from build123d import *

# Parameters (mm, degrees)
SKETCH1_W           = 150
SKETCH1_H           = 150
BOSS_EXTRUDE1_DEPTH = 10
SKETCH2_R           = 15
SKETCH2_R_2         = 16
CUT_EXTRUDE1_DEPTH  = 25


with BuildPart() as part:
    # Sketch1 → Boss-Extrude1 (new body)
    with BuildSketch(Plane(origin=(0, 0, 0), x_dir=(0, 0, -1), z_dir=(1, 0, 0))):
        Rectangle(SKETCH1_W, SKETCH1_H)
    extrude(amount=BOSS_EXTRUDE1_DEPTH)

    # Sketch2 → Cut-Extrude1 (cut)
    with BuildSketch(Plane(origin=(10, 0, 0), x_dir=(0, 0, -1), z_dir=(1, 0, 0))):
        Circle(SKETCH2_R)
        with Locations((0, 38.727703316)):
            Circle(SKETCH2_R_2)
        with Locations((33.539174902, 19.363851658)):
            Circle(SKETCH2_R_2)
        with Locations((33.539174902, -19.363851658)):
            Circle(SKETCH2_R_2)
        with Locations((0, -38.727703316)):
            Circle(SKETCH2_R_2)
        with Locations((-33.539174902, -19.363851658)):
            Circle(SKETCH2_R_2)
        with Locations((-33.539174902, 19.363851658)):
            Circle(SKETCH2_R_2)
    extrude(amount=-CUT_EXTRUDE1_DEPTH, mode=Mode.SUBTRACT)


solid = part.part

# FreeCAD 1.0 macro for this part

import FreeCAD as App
import Part
import Sketcher
from FreeCAD import Vector


def add_polygon(sketch, points):
    """Adds a closed chain of lines whose ends are joined by coincident constraints."""
    first, n = sketch.GeometryCount, len(points)
    for a, b in zip(points, points[1:] + points[:1]):
        sketch.addGeometry(Part.LineSegment(App.Vector(*a, 0), App.Vector(*b, 0)), False)
    for i in range(n):
        sketch.addConstraint(Sketcher.Constraint("Coincident", first + i, 2, first + (i + 1) % n, 1))

doc = App.newDocument("Part")
body = doc.addObject("PartDesign::Body", "Body")

# Sketch on YZ plane
sketch1 = body.newObject("Sketcher::SketchObject", "Sketch")
sketch1.AttachmentSupport = (doc.getObject("YZ_Plane"), [""])
sketch1.MapMode = "FlatFace"
add_polygon(sketch1, [(75, 75), (-75, 75), (-75, -75), (75, -75)])  # lines 0-3
sketch1.addConstraint(Sketcher.Constraint("Horizontal", 0))
sketch1.addConstraint(Sketcher.Constraint("Vertical", 1))
sketch1.addConstraint(Sketcher.Constraint("Horizontal", 2))
sketch1.addConstraint(Sketcher.Constraint("Vertical", 3))
sketch1.addConstraint(Sketcher.Constraint("Symmetric", 0, 2, 2, 2, -1, 1))
sketch1.addConstraint(Sketcher.Constraint("Equal", 2, 1))
sketch1.addConstraint(Sketcher.Constraint("DistanceX", 0, 2, 0, 1, 150.0))
pad1 = body.newObject("PartDesign::Pad", "Pad")
pad1.Profile = sketch1
pad1.Length = 10

# Sketch on YZ plane
sketch2 = body.newObject("Sketcher::SketchObject", "Sketch001")
sketch2.AttachmentSupport = (doc.getObject("YZ_Plane"), [""])
sketch2.MapMode = "FlatFace"
sketch2.AttachmentOffset = App.Placement(Vector(0, 0, 10), App.Rotation())
sketch2.addGeometry(Part.Circle(Vector(0, 0, 0), Vector(0, 0, 1), 15), False)
sketch2.addGeometry(Part.Circle(Vector(38.727703, 0, 0), Vector(0, 0, 1), 16), False)
sketch2.addGeometry(Part.Circle(Vector(19.363852, -33.539175, 0), Vector(0, 0, 1), 16), False)
sketch2.addGeometry(Part.Circle(Vector(-19.363852, -33.539175, 0), Vector(0, 0, 1), 16), False)
sketch2.addGeometry(Part.Circle(Vector(-38.727703, 0, 0), Vector(0, 0, 1), 16), False)
sketch2.addGeometry(Part.Circle(Vector(-19.363852, 33.539175, 0), Vector(0, 0, 1), 16), False)
sketch2.addGeometry(Part.Circle(Vector(19.363852, 33.539175, 0), Vector(0, 0, 1), 16), False)
sketch2.addConstraint(Sketcher.Constraint("Coincident", 0, 3, -1, 1))
sketch2.addConstraint(Sketcher.Constraint("Equal", 1, 2))
sketch2.addConstraint(Sketcher.Constraint("Equal", 2, 3))
sketch2.addConstraint(Sketcher.Constraint("Equal", 3, 4))
sketch2.addConstraint(Sketcher.Constraint("Equal", 4, 5))
sketch2.addConstraint(Sketcher.Constraint("Equal", 5, 6))
sketch2.addConstraint(Sketcher.Constraint("Symmetric", 1, 3, 4, 3, -1, 1))
sketch2.addConstraint(Sketcher.Constraint("Symmetric", 2, 3, 5, 3, -1, 1))
sketch2.addConstraint(Sketcher.Constraint("Symmetric", 3, 3, 6, 3, -1, 1))
sketch2.addConstraint(Sketcher.Constraint("Symmetric", 2, 3, 3, 3, -2))
sketch2.addConstraint(Sketcher.Constraint("PointOnObject", 1, 3, -1))
sketch2.addConstraint(Sketcher.Constraint("Diameter", 0, 30.0))
sketch2.addConstraint(Sketcher.Constraint("Diameter", 1, 32.0))
sketch2.addConstraint(Sketcher.Constraint("DistanceX", -1, 1, 2, 3, 19.363852))
sketch2.addConstraint(Sketcher.Constraint("DistanceX", 2, 3, 1, 3, 19.363852))
sketch2.addConstraint(Sketcher.Constraint("DistanceY", 3, 3, 5, 3, 67.07835))
pocket1 = body.newObject("PartDesign::Pocket", "Pocket")
pocket1.Profile = sketch2
pocket1.Length = 25

doc.recompute()
